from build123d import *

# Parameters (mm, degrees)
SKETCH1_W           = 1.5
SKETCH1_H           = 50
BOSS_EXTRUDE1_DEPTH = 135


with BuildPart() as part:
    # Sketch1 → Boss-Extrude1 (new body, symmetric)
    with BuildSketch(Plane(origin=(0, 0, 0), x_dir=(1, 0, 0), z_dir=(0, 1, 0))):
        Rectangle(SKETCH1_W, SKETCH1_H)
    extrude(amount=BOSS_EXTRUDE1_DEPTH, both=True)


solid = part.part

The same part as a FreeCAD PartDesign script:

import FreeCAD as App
import Part
import Sketcher

V = App.Vector


def add_polygon(sketch, points):
    """Adds a closed chain of lines whose ends are joined by coincident constraints."""
    first, n = sketch.GeometryCount, len(points)
    for a, b in zip(points, points[1:] + points[:1]):
        sketch.addGeometry(Part.LineSegment(App.Vector(*a, 0), App.Vector(*b, 0)), False)
    for i in range(n):
        sketch.addConstraint(Sketcher.Constraint("Coincident", first + i, 2, first + (i + 1) % n, 1))

doc = App.newDocument("Part")
body = doc.addObject("PartDesign::Body", "Body")

# Sketch on XZ plane
sketch1 = body.newObject("Sketcher::SketchObject", "Sketch")
sketch1.AttachmentSupport = (doc.getObject("XZ_Plane"), [""])
sketch1.MapMode = "FlatFace"
add_polygon(sketch1, [(-0.8, -25), (-0.8, 25), (0.8, 25), (0.8, -25)])  # lines 0-3
sketch1.addConstraint(Sketcher.Constraint("Vertical", 0))
sketch1.addConstraint(Sketcher.Constraint("Horizontal", 1))
sketch1.addConstraint(Sketcher.Constraint("Vertical", 2))
sketch1.addConstraint(Sketcher.Constraint("Horizontal", 3))
sketch1.addConstraint(Sketcher.Constraint("Symmetric", 0, 2, 2, 2, -1, 1))
sketch1.addConstraint(Sketcher.Constraint("DistanceY", 0, 1, 0, 2, 50.0))
sketch1.addConstraint(Sketcher.Constraint("DistanceX", 1, 1, 1, 2, 1.5))
pad1 = body.newObject("PartDesign::Pad", "Pad")
pad1.Profile = sketch1
pad1.Length = 270
pad1.Midplane = True

doc.recompute()
